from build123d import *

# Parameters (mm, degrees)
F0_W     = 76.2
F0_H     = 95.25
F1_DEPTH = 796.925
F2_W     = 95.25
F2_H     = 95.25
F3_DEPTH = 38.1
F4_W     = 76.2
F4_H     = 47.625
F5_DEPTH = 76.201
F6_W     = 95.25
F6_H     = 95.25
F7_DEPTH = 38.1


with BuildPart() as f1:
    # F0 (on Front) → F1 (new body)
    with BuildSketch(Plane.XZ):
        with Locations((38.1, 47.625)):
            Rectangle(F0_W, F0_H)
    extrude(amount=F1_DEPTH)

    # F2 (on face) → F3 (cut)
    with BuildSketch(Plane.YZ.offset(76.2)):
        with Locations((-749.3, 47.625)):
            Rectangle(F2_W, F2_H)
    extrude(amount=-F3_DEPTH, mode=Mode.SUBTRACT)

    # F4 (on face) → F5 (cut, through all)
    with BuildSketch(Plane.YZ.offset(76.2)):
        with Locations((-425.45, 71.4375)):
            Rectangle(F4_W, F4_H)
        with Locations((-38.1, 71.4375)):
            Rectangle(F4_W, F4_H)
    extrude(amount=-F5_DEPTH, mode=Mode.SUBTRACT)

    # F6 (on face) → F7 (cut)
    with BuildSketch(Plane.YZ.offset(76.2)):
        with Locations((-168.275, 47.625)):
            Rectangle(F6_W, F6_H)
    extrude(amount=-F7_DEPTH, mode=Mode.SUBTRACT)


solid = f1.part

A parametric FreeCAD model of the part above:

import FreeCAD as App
import Part
import Sketcher
from FreeCAD import Vector
Q = App.Units.Quantity

doc = App.newDocument("Part")
body = doc.addObject("PartDesign::Body", "Body")

# Sketch on XZ plane
sketch1 = body.newObject("Sketcher::SketchObject", "Sketch")
sketch1.AttachmentSupport = (doc.getObject("XZ_Plane"), [""])
sketch1.MapMode = "FlatFace"
sketch1.addGeometry(Part.LineSegment(Vector(0, 95, 0), Vector(0, 0, 0)), False)
sketch1.addGeometry(Part.LineSegment(Vector(0, 0, 0), Vector(76, 0, 0)), False)
sketch1.addGeometry(Part.LineSegment(Vector(76, 0, 0), Vector(76, 95, 0)), False)
sketch1.addGeometry(Part.LineSegment(Vector(76, 95, 0), Vector(0, 95, 0)), False)
sketch1.addConstraint(Sketcher.Constraint("Coincident", 0, 2, 1, 1))
sketch1.addConstraint(Sketcher.Constraint("Coincident", 1, 2, 2, 1))
sketch1.addConstraint(Sketcher.Constraint("Coincident", 2, 2, 3, 1))
sketch1.addConstraint(Sketcher.Constraint("Coincident", 3, 2, 0, 1))
sketch1.addConstraint(Sketcher.Constraint("Vertical", 0))
sketch1.addConstraint(Sketcher.Constraint("Horizontal", 1))
sketch1.addConstraint(Sketcher.Constraint("Vertical", 2))
sketch1.addConstraint(Sketcher.Constraint("Horizontal", 3))
sketch1.addConstraint(Sketcher.Constraint("Coincident", 0, 2, -1, 1))
sketch1.addConstraint(Sketcher.Constraint("DistanceX", 1, 1, 1, 2, Q("3 in")))
sketch1.addConstraint(Sketcher.Constraint("DistanceY", 0, 2, 0, 1, Q("3.75 in")))
pad1 = body.newObject("PartDesign::Pad", "Pad")
pad1.Profile = sketch1
pad1.Length = Q("31.375 in")

# Sketch on YZ plane
sketch2 = body.newObject("Sketcher::SketchObject", "Sketch001")
sketch2.AttachmentSupport = (doc.getObject("YZ_Plane"), [""])
sketch2.MapMode = "FlatFace"
sketch2.AttachmentOffset = App.Placement(Vector(0, 0, 3 * 25.4), App.Rotation())
sketch2.addGeometry(Part.LineSegment(Vector(-797, 95, 0), Vector(-797, 0, 0)), False)
sketch2.addGeometry(Part.LineSegment(Vector(-797, 0, 0), Vector(-702, 0, 0)), False)
sketch2.addGeometry(Part.LineSegment(Vector(-702, 0, 0), Vector(-702, 95, 0)), False)
sketch2.addGeometry(Part.LineSegment(Vector(-702, 95, 0), Vector(-797, 95, 0)), False)
sketch2.addConstraint(Sketcher.Constraint("Coincident", 0, 2, 1, 1))
sketch2.addConstraint(Sketcher.Constraint("Coincident", 1, 2, 2, 1))
sketch2.addConstraint(Sketcher.Constraint("Coincident", 2, 2, 3, 1))
sketch2.addConstraint(Sketcher.Constraint("Coincident", 3, 2, 0, 1))
sketch2.addConstraint(Sketcher.Constraint("Vertical", 0))
sketch2.addConstraint(Sketcher.Constraint("Horizontal", 1))
sketch2.addConstraint(Sketcher.Constraint("Vertical", 2))
sketch2.addConstraint(Sketcher.Constraint("Horizontal", 3))
sketch2.addConstraint(Sketcher.Constraint("PointOnObject", 0, 2, -1))
sketch2.addConstraint(Sketcher.Constraint("Equal", 3, 0))
sketch2.addConstraint(Sketcher.Constraint("DistanceX", 1, 1, 1, 2, Q("3.75 in")))
sketch2.addConstraint(Sketcher.Constraint("DistanceX", 0, 2, -1, 1, Q("31.375 in")))
pocket1 = body.newObject("PartDesign::Pocket", "Pocket")
pocket1.Profile = sketch2
pocket1.Length = Q("1.5 in")

# Sketch on YZ plane
sketch3 = body.newObject("Sketcher::SketchObject", "Sketch002")
sketch3.AttachmentSupport = (doc.getObject("YZ_Plane"), [""])
sketch3.MapMode = "FlatFace"
sketch3.AttachmentOffset = App.Placement(Vector(0, 0, 3 * 25.4), App.Rotation())
sketch3.addGeometry(Part.LineSegment(Vector(-464, 95, 0), Vector(-464, 48, 0)), False)
sketch3.addGeometry(Part.LineSegment(Vector(-464, 48, 0), Vector(-387, 48, 0)), False)
sketch3.addGeometry(Part.LineSegment(Vector(-387, 48, 0), Vector(-387, 95, 0)), False)
sketch3.addGeometry(Part.LineSegment(Vector(-387, 95, 0), Vector(-464, 95, 0)), False)
sketch3.addGeometry(Part.LineSegment(Vector(-76, 95, 0), Vector(-76, 48, 0)), False)
sketch3.addGeometry(Part.LineSegment(Vector(-76, 48, 0), Vector(0, 48, 0)), False)
sketch3.addGeometry(Part.LineSegment(Vector(0, 48, 0), Vector(0, 95, 0)), False)
sketch3.addGeometry(Part.LineSegment(Vector(0, 95, 0), Vector(-76, 95, 0)), False)
sketch3.addConstraint(Sketcher.Constraint("Coincident", 0, 2, 1, 1))
sketch3.addConstraint(Sketcher.Constraint("Coincident", 1, 2, 2, 1))
sketch3.addConstraint(Sketcher.Constraint("Coincident", 2, 2, 3, 1))
sketch3.addConstraint(Sketcher.Constraint("Coincident", 3, 2, 0, 1))
sketch3.addConstraint(Sketcher.Constraint("Coincident", 4, 2, 5, 1))
sketch3.addConstraint(Sketcher.Constraint("Coincident", 5, 2, 6, 1))
sketch3.addConstraint(Sketcher.Constraint("Coincident", 6, 2, 7, 1))
sketch3.addConstraint(Sketcher.Constraint("Coincident", 7, 2, 4, 1))
sketch3.addConstraint(Sketcher.Constraint("Vertical", 0))
sketch3.addConstraint(Sketcher.Constraint("Horizontal", 1))
sketch3.addConstraint(Sketcher.Constraint("Vertical", 2))
sketch3.addConstraint(Sketcher.Constraint("Horizontal", 3))
sketch3.addConstraint(Sketcher.Constraint("Vertical", 4))
sketch3.addConstraint(Sketcher.Constraint("Horizontal", 5))
sketch3.addConstraint(Sketcher.Constraint("Vertical", 6))
sketch3.addConstraint(Sketcher.Constraint("Horizontal", 7))
sketch3.addConstraint(Sketcher.Constraint("PointOnObject", 5, 2, -2))
sketch3.addConstraint(Sketcher.Constraint("Horizontal", 1, 2, 4, 2))
sketch3.addConstraint(Sketcher.Constraint("Horizontal", 3, 2, 6, 2))
sketch3.addConstraint(Sketcher.Constraint("Equal", 3, 5))
sketch3.addConstraint(Sketcher.Constraint("DistanceX", 1, 1, 1, 2, Q("3 in")))
sketch3.addConstraint(Sketcher.Constraint("DistanceY", 0, 2, 0, 1, Q("1.875 in")))
sketch3.addConstraint(Sketcher.Constraint("DistanceX", 0, 2, -1, 1, Q("18.25 in")))
sketch3.addConstraint(Sketcher.Constraint("DistanceY", -1, 1, 2, 2, Q("3.75 in")))
pocket2 = body.newObject("PartDesign::Pocket", "Pocket001")
pocket2.Profile = sketch3
pocket2.Type = "ThroughAll"

# Sketch on YZ plane
sketch4 = body.newObject("Sketcher::SketchObject", "Sketch003")
sketch4.AttachmentSupport = (doc.getObject("YZ_Plane"), [""])
sketch4.MapMode = "FlatFace"
sketch4.AttachmentOffset = App.Placement(Vector(0, 0, 3 * 25.4), App.Rotation())
sketch4.addGeometry(Part.LineSegment(Vector(-216, 95, 0), Vector(-216, 0, 0)), False)
sketch4.addGeometry(Part.LineSegment(Vector(-216, 0, 0), Vector(-121, 0, 0)), False)
sketch4.addGeometry(Part.LineSegment(Vector(-121, 0, 0), Vector(-121, 95, 0)), False)
sketch4.addGeometry(Part.LineSegment(Vector(-121, 95, 0), Vector(-216, 95, 0)), False)
sketch4.addConstraint(Sketcher.Constraint("Coincident", 0, 2, 1, 1))
sketch4.addConstraint(Sketcher.Constraint("Coincident", 1, 2, 2, 1))
sketch4.addConstraint(Sketcher.Constraint("Coincident", 2, 2, 3, 1))
sketch4.addConstraint(Sketcher.Constraint("Coincident", 3, 2, 0, 1))
sketch4.addConstraint(Sketcher.Constraint("Vertical", 0))
sketch4.addConstraint(Sketcher.Constraint("Horizontal", 1))
sketch4.addConstraint(Sketcher.Constraint("Vertical", 2))
sketch4.addConstraint(Sketcher.Constraint("Horizontal", 3))
sketch4.addConstraint(Sketcher.Constraint("PointOnObject", 0, 2, -1))
sketch4.addConstraint(Sketcher.Constraint("Equal", 3, 0))
sketch4.addConstraint(Sketcher.Constraint("DistanceX", 1, 1, 1, 2, Q("3.75 in")))
sketch4.addConstraint(Sketcher.Constraint("DistanceX", 0, 2, -1, 1, Q("8.5 in")))
pocket3 = body.newObject("PartDesign::Pocket", "Pocket002")
pocket3.Profile = sketch4
pocket3.Length = Q("1.5 in")

doc.recompute()
